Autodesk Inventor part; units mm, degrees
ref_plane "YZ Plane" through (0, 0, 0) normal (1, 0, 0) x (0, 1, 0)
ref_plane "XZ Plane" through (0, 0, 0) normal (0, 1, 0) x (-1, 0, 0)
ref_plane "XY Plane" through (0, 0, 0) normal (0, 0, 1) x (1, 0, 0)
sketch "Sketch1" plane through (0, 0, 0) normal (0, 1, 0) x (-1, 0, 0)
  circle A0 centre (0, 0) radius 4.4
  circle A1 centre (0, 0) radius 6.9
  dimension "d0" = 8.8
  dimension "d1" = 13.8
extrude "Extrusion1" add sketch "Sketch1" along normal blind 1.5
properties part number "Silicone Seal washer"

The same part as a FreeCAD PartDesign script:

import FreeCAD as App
import Part
import Sketcher
from FreeCAD import Vector

doc = App.newDocument("Part")
body = doc.addObject("PartDesign::Body", "Body")

# Sketch on XZ plane
sketch1 = doc.addObject("Sketcher::SketchObject", "Sketch")
body.addObject(sketch1)
sketch1.AttachmentSupport = (doc.XZ_Plane, [""])
sketch1.MapMode = "FlatFace"
sketch1.addGeometry(Part.Circle(Vector(0, 0, 0), Vector(0, 0, 1), 6.9), False)
sketch1.addGeometry(Part.Circle(Vector(0, 0, 0), Vector(0, 0, 1), 4.4), False)
sketch1.addConstraint(Sketcher.Constraint("Coincident", 0, 3, -1, 1))
sketch1.addConstraint(Sketcher.Constraint("Coincident", 1, 3, -1, 1))
sketch1.addConstraint(Sketcher.Constraint("Diameter", 0, 13.8))
sketch1.addConstraint(Sketcher.Constraint("Diameter", 1, 8.8))
pad1 = doc.addObject("PartDesign::Pad", "Pad")
body.addObject(pad1)
pad1.Profile = sketch1
pad1.Length = 1.5
pad1.Reversed = True

doc.recompute()
